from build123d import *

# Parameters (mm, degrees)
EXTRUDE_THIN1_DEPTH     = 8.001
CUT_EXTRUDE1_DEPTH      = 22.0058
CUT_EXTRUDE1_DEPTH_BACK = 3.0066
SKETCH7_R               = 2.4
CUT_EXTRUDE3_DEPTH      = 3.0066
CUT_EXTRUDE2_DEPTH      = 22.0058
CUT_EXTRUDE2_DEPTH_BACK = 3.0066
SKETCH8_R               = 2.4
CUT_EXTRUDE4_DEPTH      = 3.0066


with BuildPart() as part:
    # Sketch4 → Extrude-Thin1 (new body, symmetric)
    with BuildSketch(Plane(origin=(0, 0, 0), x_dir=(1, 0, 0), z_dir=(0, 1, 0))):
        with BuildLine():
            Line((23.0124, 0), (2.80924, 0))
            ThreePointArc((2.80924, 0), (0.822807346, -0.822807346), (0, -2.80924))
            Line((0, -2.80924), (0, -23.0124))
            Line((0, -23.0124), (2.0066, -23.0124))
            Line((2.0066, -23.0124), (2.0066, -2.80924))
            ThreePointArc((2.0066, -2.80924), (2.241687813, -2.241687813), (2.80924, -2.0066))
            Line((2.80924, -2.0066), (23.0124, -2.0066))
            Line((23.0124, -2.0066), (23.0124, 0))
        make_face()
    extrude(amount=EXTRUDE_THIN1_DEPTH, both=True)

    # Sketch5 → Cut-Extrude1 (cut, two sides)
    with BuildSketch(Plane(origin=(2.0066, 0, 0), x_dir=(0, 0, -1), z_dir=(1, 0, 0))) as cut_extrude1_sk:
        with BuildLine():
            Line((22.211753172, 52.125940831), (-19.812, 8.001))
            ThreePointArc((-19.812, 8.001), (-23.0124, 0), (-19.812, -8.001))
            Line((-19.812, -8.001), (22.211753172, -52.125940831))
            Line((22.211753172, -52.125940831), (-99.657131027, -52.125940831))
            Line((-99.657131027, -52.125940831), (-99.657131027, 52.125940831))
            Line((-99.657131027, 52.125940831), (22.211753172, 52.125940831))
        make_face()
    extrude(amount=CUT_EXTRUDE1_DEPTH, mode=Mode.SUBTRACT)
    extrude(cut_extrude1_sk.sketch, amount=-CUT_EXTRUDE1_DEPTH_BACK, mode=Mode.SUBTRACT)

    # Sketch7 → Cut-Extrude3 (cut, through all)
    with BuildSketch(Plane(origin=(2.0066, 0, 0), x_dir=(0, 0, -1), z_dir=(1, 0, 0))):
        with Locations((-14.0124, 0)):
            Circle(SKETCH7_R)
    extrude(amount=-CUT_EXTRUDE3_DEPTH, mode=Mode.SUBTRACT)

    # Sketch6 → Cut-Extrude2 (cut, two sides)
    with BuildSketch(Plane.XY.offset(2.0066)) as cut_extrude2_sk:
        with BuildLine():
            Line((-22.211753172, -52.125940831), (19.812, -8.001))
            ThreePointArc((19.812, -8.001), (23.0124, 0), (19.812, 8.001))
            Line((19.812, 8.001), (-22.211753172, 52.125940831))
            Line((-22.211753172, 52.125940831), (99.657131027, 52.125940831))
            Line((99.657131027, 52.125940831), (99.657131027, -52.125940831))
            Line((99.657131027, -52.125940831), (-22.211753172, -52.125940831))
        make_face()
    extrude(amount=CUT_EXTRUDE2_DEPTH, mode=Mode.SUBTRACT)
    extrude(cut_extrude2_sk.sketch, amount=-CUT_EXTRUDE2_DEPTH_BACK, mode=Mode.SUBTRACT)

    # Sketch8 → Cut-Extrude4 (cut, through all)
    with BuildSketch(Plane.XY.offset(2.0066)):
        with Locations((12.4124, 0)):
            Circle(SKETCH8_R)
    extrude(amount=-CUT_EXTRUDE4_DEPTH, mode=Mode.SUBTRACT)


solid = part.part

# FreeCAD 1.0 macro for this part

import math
import FreeCAD as App
import Part
import Sketcher
from FreeCAD import Vector
Q = App.Units.Quantity

doc = App.newDocument("Part")
body = doc.addObject("PartDesign::Body", "Body")

# Sketch on XZ plane
sketch1 = body.newObject("Sketcher::SketchObject", "Sketch")
sketch1.AttachmentSupport = (doc.getObject("XZ_Plane"), [""])
sketch1.MapMode = "FlatFace"
sketch1.addGeometry([
    Part.LineSegment(Vector(23.0124, 0, 0), Vector(2.80924, 0, 0)),  # 0
    Part.ArcOfCircle(Part.Circle(Vector(2.80924, 2.80924, 0), Vector(0, 0, 1), 2.80924), math.radians(180), math.radians(270)),  # 1
    Part.LineSegment(Vector(0, 2.80924, 0), Vector(0, 23.0124, 0)),  # 2
    Part.LineSegment(Vector(0, 23.0124, 0), Vector(2.0066, 23.0124, 0)),  # 3
    Part.LineSegment(Vector(2.0066, 23.0124, 0), Vector(2.0066, 2.80924, 0)),  # 4
    Part.ArcOfCircle(Part.Circle(Vector(2.80924, 2.80924, 0), Vector(0, 0, 1), 0.80264), math.radians(180), math.radians(270)),  # 5
    Part.LineSegment(Vector(2.80924, 2.0066, 0), Vector(23.0124, 2.0066, 0)),  # 6
    Part.LineSegment(Vector(23.0124, 2.0066, 0), Vector(23.0124, 0, 0)),  # 7
], False)
sketch1.addConstraint([
    Sketcher.Constraint("Tangent", 0, 2, 1, 2),
    Sketcher.Constraint("Tangent", 1, 1, 2, 1),
    Sketcher.Constraint("Coincident", 2, 2, 3, 1),
    Sketcher.Constraint("Coincident", 3, 2, 4, 1),
    Sketcher.Constraint("Tangent", 4, 2, 5, 1),
    Sketcher.Constraint("Tangent", 5, 2, 6, 1),
    Sketcher.Constraint("Coincident", 6, 2, 7, 1),
    Sketcher.Constraint("Coincident", 7, 2, 0, 1),
    Sketcher.Constraint("Horizontal", 0),
    Sketcher.Constraint("Vertical", 2),
    Sketcher.Constraint("Horizontal", 3),
    Sketcher.Constraint("Vertical", 4),
    Sketcher.Constraint("Horizontal", 6),
    Sketcher.Constraint("Vertical", 7),
    Sketcher.Constraint("Coincident", 5, 3, 1, 3),
    Sketcher.Constraint("PointOnObject", 0, 2, -1),
    Sketcher.Constraint("PointOnObject", 1, 1, -2),
    Sketcher.Constraint("Equal", 6, 2),
    Sketcher.Constraint("Radius", 1, Q("0.1106 in")),
    Sketcher.Constraint("Radius", 5, Q("0.0316 in")),
    Sketcher.Constraint("DistanceX", 0, 2, 0, 1, Q("0.7954 in")),
])
pad1 = body.newObject("PartDesign::Pad", "Pad")
pad1.Profile = sketch1
pad1.Length = Q("0.63 in")
pad1.Midplane = True

# Sketch on YZ plane
sketch2 = body.newObject("Sketcher::SketchObject", "Sketch001")
sketch2.AttachmentSupport = (doc.getObject("YZ_Plane"), [""])
sketch2.MapMode = "FlatFace"
sketch2.AttachmentOffset = App.Placement(Vector(0, 0, 0.079 * 25.4), App.Rotation())
sketch2.addGeometry([
    Part.LineSegment(Vector(8.001, 19.812, 0), Vector(52.125941, -22.211753, 0)),  # 0
    Part.LineSegment(Vector(52.125941, -22.211753, 0), Vector(52.125941, 99.657131, 0)),  # 1
    Part.LineSegment(Vector(52.125941, 99.657131, 0), Vector(-52.125941, 99.657131, 0)),  # 2
    Part.LineSegment(Vector(-52.125941, 99.657131, 0), Vector(-52.125941, -22.211753, 0)),  # 3
    Part.LineSegment(Vector(-52.125941, -22.211753, 0), Vector(-8.001, 19.812, 0)),  # 4
    Part.ArcOfCircle(Part.Circle(Vector(0, 11.41095, 0), Vector(0, 0, 1), 11.60145), math.radians(46.397181), math.radians(133.602819)),  # 5
], False)
sketch2.addConstraint([
    Sketcher.Constraint("Coincident", 0, 2, 1, 1),
    Sketcher.Constraint("Coincident", 1, 2, 2, 1),
    Sketcher.Constraint("Coincident", 2, 2, 3, 1),
    Sketcher.Constraint("Coincident", 3, 2, 4, 1),
    Sketcher.Constraint("Tangent", 4, 2, 5, 2),
    Sketcher.Constraint("Tangent", 5, 1, 0, 1),
    Sketcher.Constraint("Vertical", 1),
    Sketcher.Constraint("Horizontal", 2),
    Sketcher.Constraint("Vertical", 3),
    Sketcher.Constraint("Symmetric", 0, 2, 3, 2, -2),
    Sketcher.Constraint("PointOnObject", 5, 3, -2),
    Sketcher.Constraint("DistanceY", -1, 1, 4, 2, Q("0.78 in")),
    Sketcher.Constraint("DistanceX", 4, 2, 5, 1, Q("0.63 in")),
    Sketcher.Constraint("Radius", 5, Q("11.60145 mm")),
    Sketcher.Constraint("DistanceX", 2, 2, 2, 1, Q("104.251882 mm")),
    Sketcher.Constraint("DistanceY", 1, 1, 1, 2, Q("121.868884 mm")),
])
pocket1 = body.newObject("PartDesign::Pocket", "Pocket")
pocket1.Profile = sketch2
pocket1.Type = "ThroughAll"
pocket1.Midplane = True

# Sketch on YZ plane
sketch3 = body.newObject("Sketcher::SketchObject", "Sketch002")
sketch3.AttachmentSupport = (doc.getObject("YZ_Plane"), [""])
sketch3.MapMode = "FlatFace"
sketch3.AttachmentOffset = App.Placement(Vector(0, 0, 0.079 * 25.4), App.Rotation())
sketch3.addGeometry(Part.Circle(Vector(0, 14.0124, 0), Vector(0, 0, 1), 2.4), False)
sketch3.addConstraint([
    Sketcher.Constraint("PointOnObject", 0, 3, -2),
    Sketcher.Constraint("Diameter", 0, Q("4.8 mm")),
    Sketcher.Constraint("DistanceY", -1, 1, 0, 3, Q("14.0124 mm")),
])
pocket2 = body.newObject("PartDesign::Pocket", "Pocket001")
pocket2.Profile = sketch3
pocket2.Type = "ThroughAll"

# Sketch on XY plane
sketch4 = body.newObject("Sketcher::SketchObject", "Sketch003")
sketch4.AttachmentSupport = (doc.getObject("XY_Plane"), [""])
sketch4.MapMode = "FlatFace"
sketch4.AttachmentOffset = App.Placement(Vector(0, 0, 0.079 * 25.4), App.Rotation())
sketch4.addGeometry([
    Part.LineSegment(Vector(19.812, -8.001, 0), Vector(-22.211753, -52.125941, 0)),  # 0
    Part.LineSegment(Vector(-22.211753, -52.125941, 0), Vector(99.657131, -52.125941, 0)),  # 1
    Part.LineSegment(Vector(99.657131, -52.125941, 0), Vector(99.657131, 52.125941, 0)),  # 2
    Part.LineSegment(Vector(99.657131, 52.125941, 0), Vector(-22.211753, 52.125941, 0)),  # 3
    Part.LineSegment(Vector(-22.211753, 52.125941, 0), Vector(19.812, 8.001, 0)),  # 4
    Part.ArcOfCircle(Part.Circle(Vector(11.41095, 0, 0), Vector(0, 0, 1), 11.60145), math.radians(-43.602819), math.radians(43.602819)),  # 5
], False)
sketch4.addConstraint([
    Sketcher.Constraint("Coincident", 0, 2, 1, 1),
    Sketcher.Constraint("Coincident", 1, 2, 2, 1),
    Sketcher.Constraint("Coincident", 2, 2, 3, 1),
    Sketcher.Constraint("Coincident", 3, 2, 4, 1),
    Sketcher.Constraint("Tangent", 4, 2, 5, 2),
    Sketcher.Constraint("Tangent", 5, 1, 0, 1),
    Sketcher.Constraint("Horizontal", 1),
    Sketcher.Constraint("Vertical", 2),
    Sketcher.Constraint("Horizontal", 3),
    Sketcher.Constraint("Symmetric", 0, 2, 3, 2, -1),
    Sketcher.Constraint("PointOnObject", 5, 3, -1),
    Sketcher.Constraint("DistanceX", -1, 1, 4, 2, Q("0.78 in")),
    Sketcher.Constraint("DistanceY", 5, 1, 4, 2, Q("0.63 in")),
    Sketcher.Constraint("Radius", 5, Q("11.60145 mm")),
    Sketcher.Constraint("DistanceY", 2, 1, 2, 2, Q("104.251882 mm")),
    Sketcher.Constraint("DistanceX", 1, 1, 1, 2, Q("121.868884 mm")),
])
pocket3 = body.newObject("PartDesign::Pocket", "Pocket002")
pocket3.Profile = sketch4
pocket3.Type = "ThroughAll"
pocket3.Midplane = True

# Sketch on XY plane
sketch5 = body.newObject("Sketcher::SketchObject", "Sketch004")
sketch5.AttachmentSupport = (doc.getObject("XY_Plane"), [""])
sketch5.MapMode = "FlatFace"
sketch5.AttachmentOffset = App.Placement(Vector(0, 0, 0.079 * 25.4), App.Rotation())
sketch5.addGeometry(Part.Circle(Vector(12.4124, 0, 0), Vector(0, 0, 1), 2.4), False)
sketch5.addConstraint([
    Sketcher.Constraint("PointOnObject", 0, 3, -1),
    Sketcher.Constraint("Diameter", 0, Q("4.8 mm")),
    Sketcher.Constraint("DistanceX", -1, 1, 0, 3, Q("12.4124 mm")),
])
pocket4 = body.newObject("PartDesign::Pocket", "Pocket003")
pocket4.Profile = sketch5
pocket4.Type = "ThroughAll"

doc.recompute()
